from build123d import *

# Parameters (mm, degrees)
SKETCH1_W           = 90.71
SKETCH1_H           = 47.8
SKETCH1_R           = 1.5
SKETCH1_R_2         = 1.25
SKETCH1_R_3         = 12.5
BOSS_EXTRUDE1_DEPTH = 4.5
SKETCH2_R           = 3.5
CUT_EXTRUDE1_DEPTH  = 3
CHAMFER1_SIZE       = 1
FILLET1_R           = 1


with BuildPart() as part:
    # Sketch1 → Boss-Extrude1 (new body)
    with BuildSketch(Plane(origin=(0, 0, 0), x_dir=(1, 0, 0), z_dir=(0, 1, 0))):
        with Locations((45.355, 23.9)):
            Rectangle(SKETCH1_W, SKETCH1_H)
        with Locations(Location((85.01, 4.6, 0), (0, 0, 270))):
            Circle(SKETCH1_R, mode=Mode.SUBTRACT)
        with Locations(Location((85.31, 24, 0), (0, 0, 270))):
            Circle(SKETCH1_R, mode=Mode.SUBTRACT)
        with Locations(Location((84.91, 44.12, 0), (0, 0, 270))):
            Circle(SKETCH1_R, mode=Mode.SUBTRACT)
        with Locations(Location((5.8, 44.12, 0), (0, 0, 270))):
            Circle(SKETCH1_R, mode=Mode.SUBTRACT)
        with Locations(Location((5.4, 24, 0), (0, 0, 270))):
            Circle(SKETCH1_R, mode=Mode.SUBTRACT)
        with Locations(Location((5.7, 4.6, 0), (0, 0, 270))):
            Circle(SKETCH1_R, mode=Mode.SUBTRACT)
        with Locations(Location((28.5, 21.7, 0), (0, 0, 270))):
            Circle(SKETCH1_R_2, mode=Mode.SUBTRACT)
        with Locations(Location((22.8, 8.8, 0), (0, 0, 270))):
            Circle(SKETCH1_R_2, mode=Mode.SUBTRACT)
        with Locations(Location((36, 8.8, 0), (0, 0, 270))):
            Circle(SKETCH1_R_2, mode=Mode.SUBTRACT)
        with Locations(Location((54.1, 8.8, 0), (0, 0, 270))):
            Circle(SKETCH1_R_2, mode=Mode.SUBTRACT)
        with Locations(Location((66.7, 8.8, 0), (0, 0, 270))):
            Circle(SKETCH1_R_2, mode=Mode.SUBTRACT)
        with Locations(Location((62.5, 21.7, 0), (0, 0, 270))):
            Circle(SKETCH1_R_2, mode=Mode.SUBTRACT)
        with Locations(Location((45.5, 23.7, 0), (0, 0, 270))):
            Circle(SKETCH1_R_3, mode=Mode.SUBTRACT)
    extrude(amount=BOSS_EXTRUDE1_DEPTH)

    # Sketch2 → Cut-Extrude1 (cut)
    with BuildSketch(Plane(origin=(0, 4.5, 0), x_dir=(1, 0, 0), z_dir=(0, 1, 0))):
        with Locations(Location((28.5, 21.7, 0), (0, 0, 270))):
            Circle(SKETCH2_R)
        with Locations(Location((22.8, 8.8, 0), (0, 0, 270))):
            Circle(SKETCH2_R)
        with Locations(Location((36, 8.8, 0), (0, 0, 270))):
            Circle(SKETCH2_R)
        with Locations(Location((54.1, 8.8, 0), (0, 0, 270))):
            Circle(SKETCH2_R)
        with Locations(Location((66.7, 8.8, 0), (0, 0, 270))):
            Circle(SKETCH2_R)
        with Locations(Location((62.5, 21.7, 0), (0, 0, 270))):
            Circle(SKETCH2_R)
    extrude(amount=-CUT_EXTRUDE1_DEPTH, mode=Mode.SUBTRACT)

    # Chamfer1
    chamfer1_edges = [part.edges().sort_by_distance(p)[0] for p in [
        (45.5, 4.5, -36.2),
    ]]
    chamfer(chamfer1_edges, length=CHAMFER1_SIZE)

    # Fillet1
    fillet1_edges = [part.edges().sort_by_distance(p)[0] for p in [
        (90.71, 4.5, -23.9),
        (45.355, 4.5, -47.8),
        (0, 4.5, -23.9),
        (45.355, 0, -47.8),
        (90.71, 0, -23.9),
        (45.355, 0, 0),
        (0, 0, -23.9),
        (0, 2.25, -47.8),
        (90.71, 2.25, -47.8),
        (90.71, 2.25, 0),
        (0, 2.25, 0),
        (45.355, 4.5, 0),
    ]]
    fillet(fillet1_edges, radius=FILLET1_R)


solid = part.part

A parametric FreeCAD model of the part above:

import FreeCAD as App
import Part
import Sketcher
from FreeCAD import Vector


def edges_at(feature, points):
    """Names of the edges that pass closest to the given points."""
    edges = feature.Shape.Edges
    near = lambda p: min(range(len(edges)), key=lambda i: edges[i].distToShape(Part.Vertex(*p))[0])
    return sorted({f"Edge{near(p) + 1}" for p in points})

doc = App.newDocument("Part")
body = doc.addObject("PartDesign::Body", "Body")

# Sketch on XZ plane
sketch1 = doc.addObject("Sketcher::SketchObject", "Sketch")
body.addObject(sketch1)
sketch1.AttachmentSupport = (doc.XZ_Plane, [""])
sketch1.MapMode = "FlatFace"
sketch1.addGeometry(Part.LineSegment(Vector(0, -47.8, 0), Vector(0, 0, 0)), False)
sketch1.addGeometry(Part.LineSegment(Vector(0, 0, 0), Vector(90.7, 0, 0)), False)
sketch1.addGeometry(Part.LineSegment(Vector(90.7, 0, 0), Vector(90.7, -47.8, 0)), False)
sketch1.addGeometry(Part.LineSegment(Vector(90.7, -47.8, 0), Vector(0, -47.8, 0)), False)
sketch1.addGeometry(Part.Circle(Vector(5.7, -4.6, 0), Vector(0, 0, 1), 1.5), False)
sketch1.addGeometry(Part.Circle(Vector(22.8, -8.8, 0), Vector(0, 0, 1), 1.2), False)
sketch1.addGeometry(Part.Circle(Vector(36, -8.8, 0), Vector(0, 0, 1), 1.2), False)
sketch1.addGeometry(Part.Circle(Vector(5.4, -24, 0), Vector(0, 0, 1), 1.5), False)
sketch1.addGeometry(Part.Circle(Vector(28.5, -21.7, 0), Vector(0, 0, 1), 1.2), False)
sketch1.addGeometry(Part.Circle(Vector(54.1, -8.8, 0), Vector(0, 0, 1), 1.2), False)
sketch1.addGeometry(Part.Circle(Vector(85, -4.6, 0), Vector(0, 0, 1), 1.5), False)
sketch1.addGeometry(Part.Circle(Vector(66.7, -8.8, 0), Vector(0, 0, 1), 1.2), False)
sketch1.addGeometry(Part.Circle(Vector(45.5, -23.7, 0), Vector(0, 0, 1), 12.5), False)
sketch1.addGeometry(Part.Circle(Vector(62.5, -21.7, 0), Vector(0, 0, 1), 1.2), False)
sketch1.addGeometry(Part.Circle(Vector(85.3, -24, 0), Vector(0, 0, 1), 1.5), False)
sketch1.addGeometry(Part.Circle(Vector(5.8, -44.1, 0), Vector(0, 0, 1), 1.5), False)
sketch1.addGeometry(Part.Circle(Vector(84.9, -44.1, 0), Vector(0, 0, 1), 1.5), False)
sketch1.addConstraint(Sketcher.Constraint("Coincident", 0, 2, 1, 1))
sketch1.addConstraint(Sketcher.Constraint("Coincident", 1, 2, 2, 1))
sketch1.addConstraint(Sketcher.Constraint("Coincident", 2, 2, 3, 1))
sketch1.addConstraint(Sketcher.Constraint("Coincident", 3, 2, 0, 1))
sketch1.addConstraint(Sketcher.Constraint("Vertical", 0))
sketch1.addConstraint(Sketcher.Constraint("Horizontal", 1))
sketch1.addConstraint(Sketcher.Constraint("Vertical", 2))
sketch1.addConstraint(Sketcher.Constraint("Horizontal", 3))
sketch1.addConstraint(Sketcher.Constraint("Coincident", 0, 2, -1, 1))
sketch1.addConstraint(Sketcher.Constraint("Equal", 5, 6))
sketch1.addConstraint(Sketcher.Constraint("Equal", 4, 7))
sketch1.addConstraint(Sketcher.Constraint("Equal", 6, 8))
sketch1.addConstraint(Sketcher.Constraint("Equal", 8, 9))
sketch1.addConstraint(Sketcher.Constraint("Equal", 7, 10))
sketch1.addConstraint(Sketcher.Constraint("Equal", 9, 11))
sketch1.addConstraint(Sketcher.Constraint("Equal", 11, 13))
sketch1.addConstraint(Sketcher.Constraint("Equal", 10, 14))
sketch1.addConstraint(Sketcher.Constraint("Equal", 14, 15))
sketch1.addConstraint(Sketcher.Constraint("Equal", 15, 16))
sketch1.addConstraint(Sketcher.Constraint("Horizontal", 5, 3, 6, 3))
sketch1.addConstraint(Sketcher.Constraint("Horizontal", 6, 3, 9, 3))
sketch1.addConstraint(Sketcher.Constraint("Horizontal", 4, 3, 10, 3))
sketch1.addConstraint(Sketcher.Constraint("Horizontal", 9, 3, 11, 3))
sketch1.addConstraint(Sketcher.Constraint("Horizontal", 8, 3, 13, 3))
sketch1.addConstraint(Sketcher.Constraint("Horizontal", 7, 3, 14, 3))
sketch1.addConstraint(Sketcher.Constraint("Horizontal", 15, 3, 16, 3))
sketch1.addConstraint(Sketcher.Constraint("Diameter", 4, 3.0))
sketch1.addConstraint(Sketcher.Constraint("Diameter", 12, 25.0))
sketch1.addConstraint(Sketcher.Constraint("Diameter", 5, 2.5))
sketch1.addConstraint(Sketcher.Constraint("DistanceY", 0, 1, 0, 2, 47.8))
sketch1.addConstraint(Sketcher.Constraint("DistanceX", -1, 1, 6, 3, 36.0))
sketch1.addConstraint(Sketcher.Constraint("DistanceY", 7, 3, -1, 1, 24.0))
sketch1.addConstraint(Sketcher.Constraint("DistanceX", 8, 3, 12, 3, 17.0))
sketch1.addConstraint(Sketcher.Constraint("DistanceY", 12, 3, 8, 3, 2.0))
sketch1.addConstraint(Sketcher.Constraint("DistanceX", 12, 3, 13, 3, 17.0))
sketch1.addConstraint(Sketcher.Constraint("DistanceX", 15, 3, 5, 3, 17.0))
sketch1.addConstraint(Sketcher.Constraint("DistanceY", 2, 2, 11, 3, 39.0))
sketch1.addConstraint(Sketcher.Constraint("DistanceX", 1, 1, 1, 2, 90.71))
sketch1.addConstraint(Sketcher.Constraint("DistanceX", -1, 1, 4, 3, 5.7))
sketch1.addConstraint(Sketcher.Constraint("DistanceY", 4, 3, -1, 1, 4.6))
sketch1.addConstraint(Sketcher.Constraint("DistanceX", -1, 1, 5, 3, 22.8))
sketch1.addConstraint(Sketcher.Constraint("DistanceX", -1, 1, 7, 3, 5.4))
sketch1.addConstraint(Sketcher.Constraint("DistanceX", -1, 1, 8, 3, 28.5))
sketch1.addConstraint(Sketcher.Constraint("DistanceY", 8, 3, -1, 1, 21.7))
sketch1.addConstraint(Sketcher.Constraint("DistanceX", -1, 1, 9, 3, 54.1))
sketch1.addConstraint(Sketcher.Constraint("DistanceX", -1, 1, 11, 3, 66.7))
sketch1.addConstraint(Sketcher.Constraint("DistanceX", 10, 3, 14, 3, 0.3))
sketch1.addConstraint(Sketcher.Constraint("DistanceX", 16, 3, 14, 3, 0.4))
sketch1.addConstraint(Sketcher.Constraint("DistanceX", 10, 3, 1, 2, 5.7))
sketch1.addConstraint(Sketcher.Constraint("DistanceY", 15, 3, -1, 1, 44.12))
pad1 = doc.addObject("PartDesign::Pad", "Pad")
body.addObject(pad1)
pad1.Profile = sketch1
pad1.Length = 4.5
pad1.Reversed = True

# Sketch on XZ plane
sketch2 = doc.addObject("Sketcher::SketchObject", "Sketch001")
body.addObject(sketch2)
sketch2.AttachmentSupport = (doc.XZ_Plane, [""])
sketch2.MapMode = "FlatFace"
sketch2.AttachmentOffset = App.Placement(Vector(0, 0, -4.5), App.Rotation())
sketch2.addGeometry(Part.Circle(Vector(28.5, -21.7, 0), Vector(0, 0, 1), 3.5), False)
sketch2.addGeometry(Part.Circle(Vector(22.8, -8.8, 0), Vector(0, 0, 1), 3.5), False)
sketch2.addGeometry(Part.Circle(Vector(36, -8.8, 0), Vector(0, 0, 1), 3.5), False)
sketch2.addGeometry(Part.Circle(Vector(54.1, -8.8, 0), Vector(0, 0, 1), 3.5), False)
sketch2.addGeometry(Part.Circle(Vector(66.7, -8.8, 0), Vector(0, 0, 1), 3.5), False)
sketch2.addGeometry(Part.Circle(Vector(62.5, -21.7, 0), Vector(0, 0, 1), 3.5), False)
sketch2.addConstraint(Sketcher.Constraint("Equal", 0, 1))
sketch2.addConstraint(Sketcher.Constraint("Equal", 1, 2))
sketch2.addConstraint(Sketcher.Constraint("Equal", 2, 3))
sketch2.addConstraint(Sketcher.Constraint("Equal", 3, 4))
sketch2.addConstraint(Sketcher.Constraint("Equal", 4, 5))
sketch2.addConstraint(Sketcher.Constraint("Horizontal", 1, 3, 2, 3))
sketch2.addConstraint(Sketcher.Constraint("Horizontal", 2, 3, 3, 3))
sketch2.addConstraint(Sketcher.Constraint("Horizontal", 3, 3, 4, 3))
sketch2.addConstraint(Sketcher.Constraint("Horizontal", 0, 3, 5, 3))
sketch2.addConstraint(Sketcher.Constraint("Diameter", 0, 7.0))
sketch2.addConstraint(Sketcher.Constraint("DistanceX", -1, 1, 2, 3, 36.0))
sketch2.addConstraint(Sketcher.Constraint("DistanceX", 0, 3, 5, 3, 34.0))
sketch2.addConstraint(Sketcher.Constraint("DistanceX", -1, 1, 0, 3, 28.5))
sketch2.addConstraint(Sketcher.Constraint("DistanceY", 0, 3, -1, 1, 21.7))
sketch2.addConstraint(Sketcher.Constraint("DistanceX", -1, 1, 1, 3, 22.8))
sketch2.addConstraint(Sketcher.Constraint("DistanceY", 1, 3, -1, 1, 8.8))
sketch2.addConstraint(Sketcher.Constraint("DistanceX", -1, 1, 3, 3, 54.1))
sketch2.addConstraint(Sketcher.Constraint("DistanceX", -1, 1, 4, 3, 66.7))
pocket1 = doc.addObject("PartDesign::Pocket", "Pocket")
body.addObject(pocket1)
pocket1.Profile = sketch2
pocket1.Length = 3
pocket1.Reversed = True
doc.recompute()

chamfer = doc.addObject("PartDesign::Chamfer", "Chamfer")
body.addObject(chamfer)
chamfer.Base = (pocket1, edges_at(pocket1, [(45.5, 4.5, -36.2)]))
chamfer.Size = 1
doc.recompute()

fillet = doc.addObject("PartDesign::Fillet", "Fillet")
body.addObject(fillet)
fillet.Base = (chamfer, edges_at(chamfer, [
    (90.71, 4.5, -23.9),
    (45.355, 4.5, -47.8),
    (0, 4.5, -23.9),
    (45.355, 0, -47.8),
    (90.71, 0, -23.9),
    (45.355, 0, 0),
    (0, 0, -23.9),
    (0, 2.25, -47.8),
    (90.71, 2.25, -47.8),
    (90.71, 2.25, 0),
    (0, 2.25, 0),
    (45.355, 4.5, 0),
]))
fillet.Radius = 1

doc.recompute()
